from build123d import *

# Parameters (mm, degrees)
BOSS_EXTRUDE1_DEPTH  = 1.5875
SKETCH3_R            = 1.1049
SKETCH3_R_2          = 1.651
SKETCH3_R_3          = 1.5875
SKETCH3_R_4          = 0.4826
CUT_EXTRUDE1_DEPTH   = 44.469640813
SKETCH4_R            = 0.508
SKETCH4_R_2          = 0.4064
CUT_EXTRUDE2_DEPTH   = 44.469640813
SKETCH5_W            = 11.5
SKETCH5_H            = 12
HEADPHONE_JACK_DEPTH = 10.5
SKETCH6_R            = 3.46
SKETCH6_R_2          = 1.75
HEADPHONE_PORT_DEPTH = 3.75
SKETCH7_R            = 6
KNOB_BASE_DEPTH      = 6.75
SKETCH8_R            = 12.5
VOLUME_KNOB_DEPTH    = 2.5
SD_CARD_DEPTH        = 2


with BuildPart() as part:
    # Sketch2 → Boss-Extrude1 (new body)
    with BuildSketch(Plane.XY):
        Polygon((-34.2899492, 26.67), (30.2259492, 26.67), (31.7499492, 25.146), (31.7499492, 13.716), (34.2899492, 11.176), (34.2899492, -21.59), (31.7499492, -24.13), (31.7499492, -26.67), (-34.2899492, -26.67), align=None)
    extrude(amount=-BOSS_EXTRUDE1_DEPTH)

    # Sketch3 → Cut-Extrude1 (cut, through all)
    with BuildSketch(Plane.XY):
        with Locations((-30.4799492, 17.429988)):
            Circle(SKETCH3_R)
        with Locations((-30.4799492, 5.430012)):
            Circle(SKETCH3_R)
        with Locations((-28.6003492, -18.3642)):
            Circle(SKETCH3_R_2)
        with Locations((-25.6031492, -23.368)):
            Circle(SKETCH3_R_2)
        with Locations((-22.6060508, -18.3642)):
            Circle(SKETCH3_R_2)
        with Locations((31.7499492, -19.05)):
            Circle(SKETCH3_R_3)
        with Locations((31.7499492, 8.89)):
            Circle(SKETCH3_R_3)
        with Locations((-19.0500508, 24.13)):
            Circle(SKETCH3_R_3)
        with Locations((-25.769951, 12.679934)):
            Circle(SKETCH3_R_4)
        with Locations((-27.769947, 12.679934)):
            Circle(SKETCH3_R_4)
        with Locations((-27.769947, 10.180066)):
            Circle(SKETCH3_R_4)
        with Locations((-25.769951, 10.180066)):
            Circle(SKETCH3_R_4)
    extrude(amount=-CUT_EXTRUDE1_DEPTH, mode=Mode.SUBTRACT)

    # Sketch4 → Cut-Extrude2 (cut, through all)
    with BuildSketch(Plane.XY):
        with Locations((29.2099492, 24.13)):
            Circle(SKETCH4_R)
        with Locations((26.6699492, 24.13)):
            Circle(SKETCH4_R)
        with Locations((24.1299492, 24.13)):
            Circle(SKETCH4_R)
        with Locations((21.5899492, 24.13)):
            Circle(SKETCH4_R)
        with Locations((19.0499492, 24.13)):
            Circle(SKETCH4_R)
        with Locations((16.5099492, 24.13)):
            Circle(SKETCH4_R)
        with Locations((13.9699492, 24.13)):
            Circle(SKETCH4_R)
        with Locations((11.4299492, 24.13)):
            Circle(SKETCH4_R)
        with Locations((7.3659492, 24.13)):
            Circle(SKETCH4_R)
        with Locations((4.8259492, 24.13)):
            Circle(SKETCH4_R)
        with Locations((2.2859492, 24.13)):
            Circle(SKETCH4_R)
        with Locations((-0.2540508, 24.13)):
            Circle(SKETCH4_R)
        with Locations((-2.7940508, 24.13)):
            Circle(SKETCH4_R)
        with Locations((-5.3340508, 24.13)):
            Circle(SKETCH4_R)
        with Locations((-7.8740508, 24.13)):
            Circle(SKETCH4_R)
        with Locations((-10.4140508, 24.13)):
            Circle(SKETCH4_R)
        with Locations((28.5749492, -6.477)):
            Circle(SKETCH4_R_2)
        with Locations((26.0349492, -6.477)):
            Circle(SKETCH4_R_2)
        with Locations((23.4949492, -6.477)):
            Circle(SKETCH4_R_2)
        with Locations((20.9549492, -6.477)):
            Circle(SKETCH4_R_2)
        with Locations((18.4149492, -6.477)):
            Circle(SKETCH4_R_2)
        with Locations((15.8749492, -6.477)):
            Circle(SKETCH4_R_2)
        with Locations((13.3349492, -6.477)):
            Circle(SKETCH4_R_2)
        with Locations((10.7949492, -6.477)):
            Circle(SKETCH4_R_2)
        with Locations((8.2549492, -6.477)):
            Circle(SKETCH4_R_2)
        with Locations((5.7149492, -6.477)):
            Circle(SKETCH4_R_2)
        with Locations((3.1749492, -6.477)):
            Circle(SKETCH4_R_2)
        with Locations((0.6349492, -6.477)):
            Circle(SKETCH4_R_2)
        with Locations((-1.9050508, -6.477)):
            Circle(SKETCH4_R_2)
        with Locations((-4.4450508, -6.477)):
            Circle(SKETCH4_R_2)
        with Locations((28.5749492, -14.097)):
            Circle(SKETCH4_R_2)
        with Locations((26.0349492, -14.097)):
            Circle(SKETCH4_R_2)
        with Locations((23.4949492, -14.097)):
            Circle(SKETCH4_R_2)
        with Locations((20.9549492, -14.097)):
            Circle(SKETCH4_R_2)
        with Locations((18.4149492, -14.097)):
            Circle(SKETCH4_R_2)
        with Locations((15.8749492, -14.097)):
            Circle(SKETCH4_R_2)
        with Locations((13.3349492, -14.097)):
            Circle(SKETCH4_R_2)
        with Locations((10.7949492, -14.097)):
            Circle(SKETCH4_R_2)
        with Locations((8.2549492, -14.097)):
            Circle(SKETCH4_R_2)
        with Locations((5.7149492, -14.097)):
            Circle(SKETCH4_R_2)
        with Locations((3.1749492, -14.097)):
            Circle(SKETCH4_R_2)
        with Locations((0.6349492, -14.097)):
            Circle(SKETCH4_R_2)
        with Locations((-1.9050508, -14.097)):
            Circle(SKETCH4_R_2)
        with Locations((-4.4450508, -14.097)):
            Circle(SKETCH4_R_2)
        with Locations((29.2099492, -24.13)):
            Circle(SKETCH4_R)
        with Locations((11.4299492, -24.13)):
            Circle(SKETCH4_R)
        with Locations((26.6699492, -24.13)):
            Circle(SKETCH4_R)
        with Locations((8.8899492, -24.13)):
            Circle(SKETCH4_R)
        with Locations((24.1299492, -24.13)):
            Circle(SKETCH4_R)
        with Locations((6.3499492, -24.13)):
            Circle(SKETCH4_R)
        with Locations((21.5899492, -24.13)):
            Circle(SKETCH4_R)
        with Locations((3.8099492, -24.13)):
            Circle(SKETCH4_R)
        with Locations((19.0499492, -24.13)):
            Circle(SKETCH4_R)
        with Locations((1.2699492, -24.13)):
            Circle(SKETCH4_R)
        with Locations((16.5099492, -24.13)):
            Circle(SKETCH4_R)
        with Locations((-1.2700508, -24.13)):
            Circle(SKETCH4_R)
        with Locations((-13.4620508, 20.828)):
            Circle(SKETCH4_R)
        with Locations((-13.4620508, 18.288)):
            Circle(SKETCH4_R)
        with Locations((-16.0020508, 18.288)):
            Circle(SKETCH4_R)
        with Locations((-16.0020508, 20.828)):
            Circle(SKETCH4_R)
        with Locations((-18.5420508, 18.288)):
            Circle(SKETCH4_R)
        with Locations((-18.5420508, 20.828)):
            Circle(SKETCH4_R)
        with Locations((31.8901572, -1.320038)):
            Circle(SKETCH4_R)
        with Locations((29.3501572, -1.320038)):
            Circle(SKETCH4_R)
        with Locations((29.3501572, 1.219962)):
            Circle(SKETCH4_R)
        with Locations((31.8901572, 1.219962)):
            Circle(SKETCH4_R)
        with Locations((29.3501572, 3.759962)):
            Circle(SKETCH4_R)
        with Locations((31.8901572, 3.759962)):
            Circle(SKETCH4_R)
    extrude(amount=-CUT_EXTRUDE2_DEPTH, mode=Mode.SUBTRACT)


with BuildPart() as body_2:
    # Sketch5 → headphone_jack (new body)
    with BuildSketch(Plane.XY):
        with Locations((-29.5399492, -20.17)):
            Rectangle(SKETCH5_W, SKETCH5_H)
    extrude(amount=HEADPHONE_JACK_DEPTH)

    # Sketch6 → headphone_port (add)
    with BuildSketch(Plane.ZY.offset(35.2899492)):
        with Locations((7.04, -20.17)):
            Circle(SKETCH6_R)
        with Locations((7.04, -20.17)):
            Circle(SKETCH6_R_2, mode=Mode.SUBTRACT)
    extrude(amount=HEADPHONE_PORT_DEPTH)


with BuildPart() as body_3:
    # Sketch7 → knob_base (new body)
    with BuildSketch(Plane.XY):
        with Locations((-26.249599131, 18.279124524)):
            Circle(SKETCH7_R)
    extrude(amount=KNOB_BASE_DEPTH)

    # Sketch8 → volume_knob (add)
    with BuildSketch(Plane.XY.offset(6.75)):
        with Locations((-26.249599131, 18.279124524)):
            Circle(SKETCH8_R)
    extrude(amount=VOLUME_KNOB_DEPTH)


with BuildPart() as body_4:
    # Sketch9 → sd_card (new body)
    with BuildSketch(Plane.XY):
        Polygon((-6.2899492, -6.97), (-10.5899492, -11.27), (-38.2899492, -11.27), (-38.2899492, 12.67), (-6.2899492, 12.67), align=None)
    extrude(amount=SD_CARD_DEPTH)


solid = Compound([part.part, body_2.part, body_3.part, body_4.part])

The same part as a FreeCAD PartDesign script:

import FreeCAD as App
import Part
import Sketcher
from FreeCAD import Vector
Q = App.Units.Quantity

doc = App.newDocument("Part")
body = doc.addObject("PartDesign::Body", "Body")

sketch1 = doc.addObject("Sketcher::SketchObject", "Sketch")
body.addObject(sketch1)
sketch1.AttachmentSupport = (doc.XY_Plane, [""])
sketch1.MapMode = "FlatFace"
sketch1.addGeometry(Part.LineSegment(Vector(30.2, 26.7, 0), Vector(-34.3, 26.7, 0)), False)
sketch1.addGeometry(Part.LineSegment(Vector(-34.3, 26.7, 0), Vector(-34.3, -26.7, 0)), False)
sketch1.addGeometry(Part.LineSegment(Vector(-34.3, -26.7, 0), Vector(31.7, -26.7, 0)), False)
sketch1.addGeometry(Part.LineSegment(Vector(31.7, -26.7, 0), Vector(31.7, -24.1, 0)), False)
sketch1.addGeometry(Part.LineSegment(Vector(31.7, -24.1, 0), Vector(34.3, -21.6, 0)), False)
sketch1.addGeometry(Part.LineSegment(Vector(34.3, -21.6, 0), Vector(34.3, 11.2, 0)), False)
sketch1.addGeometry(Part.LineSegment(Vector(34.3, 11.2, 0), Vector(31.7, 13.7, 0)), False)
sketch1.addGeometry(Part.LineSegment(Vector(31.7, 13.7, 0), Vector(31.7, 25.1, 0)), False)
sketch1.addGeometry(Part.LineSegment(Vector(31.7, 25.1, 0), Vector(30.2, 26.7, 0)), False)
sketch1.addConstraint(Sketcher.Constraint("Coincident", 0, 2, 1, 1))
sketch1.addConstraint(Sketcher.Constraint("Coincident", 1, 2, 2, 1))
sketch1.addConstraint(Sketcher.Constraint("Coincident", 2, 2, 3, 1))
sketch1.addConstraint(Sketcher.Constraint("Coincident", 3, 2, 4, 1))
sketch1.addConstraint(Sketcher.Constraint("Coincident", 4, 2, 5, 1))
sketch1.addConstraint(Sketcher.Constraint("Coincident", 5, 2, 6, 1))
sketch1.addConstraint(Sketcher.Constraint("Coincident", 6, 2, 7, 1))
sketch1.addConstraint(Sketcher.Constraint("Coincident", 7, 2, 8, 1))
sketch1.addConstraint(Sketcher.Constraint("Coincident", 8, 2, 0, 1))
sketch1.addConstraint(Sketcher.Constraint("Horizontal", 0))
sketch1.addConstraint(Sketcher.Constraint("Vertical", 1))
sketch1.addConstraint(Sketcher.Constraint("Horizontal", 2))
sketch1.addConstraint(Sketcher.Constraint("Vertical", 3))
sketch1.addConstraint(Sketcher.Constraint("Vertical", 5))
sketch1.addConstraint(Sketcher.Constraint("Vertical", 7))
sketch1.addConstraint(Sketcher.Constraint("Perpendicular", 4, 6))
sketch1.addConstraint(Sketcher.Constraint("Parallel", 6, 8))
sketch1.addConstraint(Sketcher.Constraint("Vertical", 3, 2, 6, 2))
sketch1.addConstraint(Sketcher.Constraint("Equal", 4, 6))
sketch1.addConstraint(Sketcher.Constraint("DistanceY", 1, 2, 1, 1, Q("2.1 in")))
sketch1.addConstraint(Sketcher.Constraint("DistanceY", 3, 1, 3, 2, Q("0.1 in")))
sketch1.addConstraint(Sketcher.Constraint("DistanceY", 5, 1, 5, 2, Q("1.29 in")))
sketch1.addConstraint(Sketcher.Constraint("DistanceY", 7, 1, 7, 2, Q("0.45 in")))
sketch1.addConstraint(Sketcher.Constraint("DistanceX", 3, 2, 4, 2, Q("0.1 in")))
sketch1.addConstraint(Sketcher.Constraint("DistanceY", -1, 1, 0, 2, Q("1.05 in")))
sketch1.addConstraint(Sketcher.Constraint("DistanceX", 0, 2, 0, 1, Q("64.515898 mm")))
sketch1.addConstraint(Sketcher.Constraint("DistanceX", 0, 2, -1, 1, Q("34.289949 mm")))
pad1 = doc.addObject("PartDesign::Pad", "Pad")
body.addObject(pad1)
pad1.Profile = sketch1
pad1.Length = Q("0.0625 in")
pad1.Reversed = True

sketch2 = doc.addObject("Sketcher::SketchObject", "Sketch001")
body.addObject(sketch2)
sketch2.AttachmentSupport = (doc.XY_Plane, [""])
sketch2.MapMode = "FlatFace"
sketch2.addGeometry(Part.Circle(Vector(-30.48, 17.43, 0), Vector(0, 0, 1), 1.1), False)
sketch2.addGeometry(Part.Circle(Vector(-30.48, 5.43, 0), Vector(0, 0, 1), 1.1), False)
sketch2.addGeometry(Part.Circle(Vector(-28.6, -18.36, 0), Vector(0, 0, 1), 1.65), False)
sketch2.addGeometry(Part.Circle(Vector(-25.6, -23.37, 0), Vector(0, 0, 1), 1.65), False)
sketch2.addGeometry(Part.Circle(Vector(-22.61, -18.36, 0), Vector(0, 0, 1), 1.65), False)
sketch2.addGeometry(Part.Circle(Vector(31.75, -19.05, 0), Vector(0, 0, 1), 1.59), False)
sketch2.addGeometry(Part.Circle(Vector(31.75, 8.89, 0), Vector(0, 0, 1), 1.59), False)
sketch2.addGeometry(Part.Circle(Vector(-19.05, 24.13, 0), Vector(0, 0, 1), 1.59), False)
sketch2.addGeometry(Part.Circle(Vector(-25.77, 12.68, 0), Vector(0, 0, 1), 0.48), False)
sketch2.addGeometry(Part.Circle(Vector(-27.77, 12.68, 0), Vector(0, 0, 1), 0.48), False)
sketch2.addGeometry(Part.Circle(Vector(-27.77, 10.18, 0), Vector(0, 0, 1), 0.48), False)
sketch2.addGeometry(Part.Circle(Vector(-25.77, 10.18, 0), Vector(0, 0, 1), 0.48), False)
sketch2.addConstraint(Sketcher.Constraint("Equal", 0, 1))
sketch2.addConstraint(Sketcher.Constraint("Equal", 2, 3))
sketch2.addConstraint(Sketcher.Constraint("Equal", 3, 4))
sketch2.addConstraint(Sketcher.Constraint("Equal", 5, 6))
sketch2.addConstraint(Sketcher.Constraint("Equal", 6, 7))
sketch2.addConstraint(Sketcher.Constraint("Equal", 8, 9))
sketch2.addConstraint(Sketcher.Constraint("Equal", 9, 10))
sketch2.addConstraint(Sketcher.Constraint("Equal", 10, 11))
sketch2.addConstraint(Sketcher.Constraint("Horizontal", 2, 3, 4, 3))
sketch2.addConstraint(Sketcher.Constraint("Horizontal", 8, 3, 9, 3))
sketch2.addConstraint(Sketcher.Constraint("Horizontal", 10, 3, 11, 3))
sketch2.addConstraint(Sketcher.Constraint("Vertical", 0, 3, 1, 3))
sketch2.addConstraint(Sketcher.Constraint("Vertical", 5, 3, 6, 3))
sketch2.addConstraint(Sketcher.Constraint("Vertical", 9, 3, 10, 3))
sketch2.addConstraint(Sketcher.Constraint("Vertical", 8, 3, 11, 3))
sketch2.addConstraint(Sketcher.Constraint("Diameter", 2, Q("0.13 in")))
sketch2.addConstraint(Sketcher.Constraint("Diameter", 0, Q("0.087 in")))
sketch2.addConstraint(Sketcher.Constraint("Diameter", 5, Q("0.125 in")))
sketch2.addConstraint(Sketcher.Constraint("Diameter", 8, Q("0.038 in")))
sketch2.addConstraint(Sketcher.Constraint("DistanceY", 5, 3, 6, 3, Q("1.1 in")))
sketch2.addConstraint(Sketcher.Constraint("DistanceY", 3, 3, -1, 1, Q("0.92 in")))
sketch2.addConstraint(Sketcher.Constraint("DistanceY", 5, 3, -1, 1, Q("0.75 in")))
sketch2.addConstraint(Sketcher.Constraint("DistanceY", -1, 1, 7, 3, Q("0.95 in")))
sketch2.addConstraint(Sketcher.Constraint("DistanceX", 4, 3, 5, 3, Q("2.14 in")))
sketch2.addConstraint(Sketcher.Constraint("DistanceX", 4, 3, 7, 3, Q("0.14 in")))
sketch2.addConstraint(Sketcher.Constraint("DistanceY", 2, 3, -1, 1, Q("0.723 in")))
sketch2.addConstraint(Sketcher.Constraint("DistanceX", 1, 3, 2, 3, Q("0.074 in")))
sketch2.addConstraint(Sketcher.Constraint("DistanceX", 2, 3, 3, 3, Q("0.118 in")))
sketch2.addConstraint(Sketcher.Constraint("DistanceX", 3, 3, 4, 3, Q("2.997098 mm")))
sketch2.addConstraint(Sketcher.Constraint("DistanceX", 0, 3, 8, 3, Q("4.709998 mm")))
sketch2.addConstraint(Sketcher.Constraint("DistanceX", 0, 3, -1, 1, Q("30.479949 mm")))
sketch2.addConstraint(Sketcher.Constraint("DistanceY", -1, 1, 0, 3, Q("17.429988 mm")))
sketch2.addConstraint(Sketcher.Constraint("DistanceY", -1, 1, 1, 3, Q("5.430012 mm")))
sketch2.addConstraint(Sketcher.Constraint("DistanceY", 1, 3, 8, 3, Q("7.249922 mm")))
sketch2.addConstraint(Sketcher.Constraint("DistanceX", 9, 3, -1, 1, Q("27.769947 mm")))
sketch2.addConstraint(Sketcher.Constraint("DistanceY", -1, 1, 10, 3, Q("10.180066 mm")))
pocket1 = doc.addObject("PartDesign::Pocket", "Pocket")
body.addObject(pocket1)
pocket1.Profile = sketch2
pocket1.Type = "ThroughAll"

sketch3 = doc.addObject("Sketcher::SketchObject", "Sketch002")
body.addObject(sketch3)
sketch3.AttachmentSupport = (doc.XY_Plane, [""])
sketch3.MapMode = "FlatFace"
sketch3.addGeometry(Part.Circle(Vector(29.21, 24.13, 0), Vector(0, 0, 1), 0.51), False)
sketch3.addGeometry(Part.Circle(Vector(26.67, 24.13, 0), Vector(0, 0, 1), 0.51), False)
sketch3.addGeometry(Part.Circle(Vector(24.13, 24.13, 0), Vector(0, 0, 1), 0.51), False)
sketch3.addGeometry(Part.Circle(Vector(21.59, 24.13, 0), Vector(0, 0, 1), 0.51), False)
sketch3.addGeometry(Part.Circle(Vector(19.05, 24.13, 0), Vector(0, 0, 1), 0.51), False)
sketch3.addGeometry(Part.Circle(Vector(16.51, 24.13, 0), Vector(0, 0, 1), 0.51), False)
sketch3.addGeometry(Part.Circle(Vector(13.97, 24.13, 0), Vector(0, 0, 1), 0.51), False)
sketch3.addGeometry(Part.Circle(Vector(11.43, 24.13, 0), Vector(0, 0, 1), 0.51), False)
sketch3.addGeometry(Part.Circle(Vector(7.37, 24.13, 0), Vector(0, 0, 1), 0.51), False)
sketch3.addGeometry(Part.Circle(Vector(4.83, 24.13, 0), Vector(0, 0, 1), 0.51), False)
sketch3.addGeometry(Part.Circle(Vector(2.29, 24.13, 0), Vector(0, 0, 1), 0.51), False)
sketch3.addGeometry(Part.Circle(Vector(-0.25, 24.13, 0), Vector(0, 0, 1), 0.51), False)
sketch3.addGeometry(Part.Circle(Vector(-2.79, 24.13, 0), Vector(0, 0, 1), 0.51), False)
sketch3.addGeometry(Part.Circle(Vector(-5.33, 24.13, 0), Vector(0, 0, 1), 0.51), False)
sketch3.addGeometry(Part.Circle(Vector(-7.87, 24.13, 0), Vector(0, 0, 1), 0.51), False)
sketch3.addGeometry(Part.Circle(Vector(-10.41, 24.13, 0), Vector(0, 0, 1), 0.51), False)
sketch3.addGeometry(Part.Circle(Vector(28.57, -6.48, 0), Vector(0, 0, 1), 0.41), False)
sketch3.addGeometry(Part.Circle(Vector(26.03, -6.48, 0), Vector(0, 0, 1), 0.41), False)
sketch3.addGeometry(Part.Circle(Vector(23.49, -6.48, 0), Vector(0, 0, 1), 0.41), False)
sketch3.addGeometry(Part.Circle(Vector(20.95, -6.48, 0), Vector(0, 0, 1), 0.41), False)
sketch3.addGeometry(Part.Circle(Vector(18.41, -6.48, 0), Vector(0, 0, 1), 0.41), False)
sketch3.addGeometry(Part.Circle(Vector(15.87, -6.48, 0), Vector(0, 0, 1), 0.41), False)
sketch3.addGeometry(Part.Circle(Vector(13.33, -6.48, 0), Vector(0, 0, 1), 0.41), False)
sketch3.addGeometry(Part.Circle(Vector(10.79, -6.48, 0), Vector(0, 0, 1), 0.41), False)
sketch3.addGeometry(Part.Circle(Vector(8.25, -6.48, 0), Vector(0, 0, 1), 0.41), False)
sketch3.addGeometry(Part.Circle(Vector(5.71, -6.48, 0), Vector(0, 0, 1), 0.41), False)
sketch3.addGeometry(Part.Circle(Vector(3.17, -6.48, 0), Vector(0, 0, 1), 0.41), False)
sketch3.addGeometry(Part.Circle(Vector(0.63, -6.48, 0), Vector(0, 0, 1), 0.41), False)
sketch3.addGeometry(Part.Circle(Vector(-1.91, -6.48, 0), Vector(0, 0, 1), 0.41), False)
sketch3.addGeometry(Part.Circle(Vector(-4.45, -6.48, 0), Vector(0, 0, 1), 0.41), False)
sketch3.addGeometry(Part.Circle(Vector(28.57, -14.1, 0), Vector(0, 0, 1), 0.41), False)
sketch3.addGeometry(Part.Circle(Vector(26.03, -14.1, 0), Vector(0, 0, 1), 0.41), False)
sketch3.addGeometry(Part.Circle(Vector(23.49, -14.1, 0), Vector(0, 0, 1), 0.41), False)
sketch3.addGeometry(Part.Circle(Vector(20.95, -14.1, 0), Vector(0, 0, 1), 0.41), False)
sketch3.addGeometry(Part.Circle(Vector(18.41, -14.1, 0), Vector(0, 0, 1), 0.41), False)
sketch3.addGeometry(Part.Circle(Vector(15.87, -14.1, 0), Vector(0, 0, 1), 0.41), False)
sketch3.addGeometry(Part.Circle(Vector(13.33, -14.1, 0), Vector(0, 0, 1), 0.41), False)
sketch3.addGeometry(Part.Circle(Vector(10.79, -14.1, 0), Vector(0, 0, 1), 0.41), False)
sketch3.addGeometry(Part.Circle(Vector(8.25, -14.1, 0), Vector(0, 0, 1), 0.41), False)
sketch3.addGeometry(Part.Circle(Vector(5.71, -14.1, 0), Vector(0, 0, 1), 0.41), False)
sketch3.addGeometry(Part.Circle(Vector(3.17, -14.1, 0), Vector(0, 0, 1), 0.41), False)
sketch3.addGeometry(Part.Circle(Vector(0.63, -14.1, 0), Vector(0, 0, 1), 0.41), False)
sketch3.addGeometry(Part.Circle(Vector(-1.91, -14.1, 0), Vector(0, 0, 1), 0.41), False)
sketch3.addGeometry(Part.Circle(Vector(-4.45, -14.1, 0), Vector(0, 0, 1), 0.41), False)
sketch3.addGeometry(Part.Circle(Vector(29.21, -24.13, 0), Vector(0, 0, 1), 0.51), False)
sketch3.addGeometry(Part.Circle(Vector(11.43, -24.13, 0), Vector(0, 0, 1), 0.51), False)
sketch3.addGeometry(Part.Circle(Vector(26.67, -24.13, 0), Vector(0, 0, 1), 0.51), False)
sketch3.addGeometry(Part.Circle(Vector(8.89, -24.13, 0), Vector(0, 0, 1), 0.51), False)
sketch3.addGeometry(Part.Circle(Vector(24.13, -24.13, 0), Vector(0, 0, 1), 0.51), False)
sketch3.addGeometry(Part.Circle(Vector(6.35, -24.13, 0), Vector(0, 0, 1), 0.51), False)
sketch3.addGeometry(Part.Circle(Vector(21.59, -24.13, 0), Vector(0, 0, 1), 0.51), False)
sketch3.addGeometry(Part.Circle(Vector(3.81, -24.13, 0), Vector(0, 0, 1), 0.51), False)
sketch3.addGeometry(Part.Circle(Vector(19.05, -24.13, 0), Vector(0, 0, 1), 0.51), False)
sketch3.addGeometry(Part.Circle(Vector(1.27, -24.13, 0), Vector(0, 0, 1), 0.51), False)
sketch3.addGeometry(Part.Circle(Vector(16.51, -24.13, 0), Vector(0, 0, 1), 0.51), False)
sketch3.addGeometry(Part.Circle(Vector(-1.27, -24.13, 0), Vector(0, 0, 1), 0.51), False)
sketch3.addGeometry(Part.Circle(Vector(-13.46, 20.83, 0), Vector(0, 0, 1), 0.51), False)
sketch3.addGeometry(Part.Circle(Vector(-13.46, 18.29, 0), Vector(0, 0, 1), 0.51), False)
sketch3.addGeometry(Part.Circle(Vector(-16, 18.29, 0), Vector(0, 0, 1), 0.51), False)
sketch3.addGeometry(Part.Circle(Vector(-16, 20.83, 0), Vector(0, 0, 1), 0.51), False)
sketch3.addGeometry(Part.Circle(Vector(-18.54, 18.29, 0), Vector(0, 0, 1), 0.51), False)
sketch3.addGeometry(Part.Circle(Vector(-18.54, 20.83, 0), Vector(0, 0, 1), 0.51), False)
sketch3.addGeometry(Part.Circle(Vector(31.89, -1.32, 0), Vector(0, 0, 1), 0.51), False)
sketch3.addGeometry(Part.Circle(Vector(29.35, -1.32, 0), Vector(0, 0, 1), 0.51), False)
sketch3.addGeometry(Part.Circle(Vector(29.35, 1.22, 0), Vector(0, 0, 1), 0.51), False)
sketch3.addGeometry(Part.Circle(Vector(31.89, 1.22, 0), Vector(0, 0, 1), 0.51), False)
sketch3.addGeometry(Part.Circle(Vector(29.35, 3.76, 0), Vector(0, 0, 1), 0.51), False)
sketch3.addGeometry(Part.Circle(Vector(31.89, 3.76, 0), Vector(0, 0, 1), 0.51), False)
sketch3.addConstraint(Sketcher.Constraint("Equal", 0, 1))
sketch3.addConstraint(Sketcher.Constraint("Equal", 1, 2))
sketch3.addConstraint(Sketcher.Constraint("Equal", 2, 3))
sketch3.addConstraint(Sketcher.Constraint("Equal", 3, 4))
sketch3.addConstraint(Sketcher.Constraint("Equal", 4, 5))
sketch3.addConstraint(Sketcher.Constraint("Equal", 5, 6))
sketch3.addConstraint(Sketcher.Constraint("Equal", 6, 7))
sketch3.addConstraint(Sketcher.Constraint("Equal", 7, 8))
sketch3.addConstraint(Sketcher.Constraint("Equal", 8, 9))
sketch3.addConstraint(Sketcher.Constraint("Equal", 9, 10))
sketch3.addConstraint(Sketcher.Constraint("Equal", 10, 11))
sketch3.addConstraint(Sketcher.Constraint("Equal", 11, 12))
sketch3.addConstraint(Sketcher.Constraint("Equal", 12, 13))
sketch3.addConstraint(Sketcher.Constraint("Equal", 13, 14))
sketch3.addConstraint(Sketcher.Constraint("Equal", 14, 15))
sketch3.addConstraint(Sketcher.Constraint("Equal", 16, 17))
sketch3.addConstraint(Sketcher.Constraint("Equal", 17, 18))
sketch3.addConstraint(Sketcher.Constraint("Equal", 18, 19))
sketch3.addConstraint(Sketcher.Constraint("Equal", 19, 20))
sketch3.addConstraint(Sketcher.Constraint("Equal", 20, 21))
sketch3.addConstraint(Sketcher.Constraint("Equal", 21, 22))
sketch3.addConstraint(Sketcher.Constraint("Equal", 22, 23))
sketch3.addConstraint(Sketcher.Constraint("Equal", 23, 24))
sketch3.addConstraint(Sketcher.Constraint("Equal", 24, 25))
sketch3.addConstraint(Sketcher.Constraint("Equal", 25, 26))
sketch3.addConstraint(Sketcher.Constraint("Equal", 26, 27))
sketch3.addConstraint(Sketcher.Constraint("Equal", 27, 28))
sketch3.addConstraint(Sketcher.Constraint("Equal", 28, 29))
sketch3.addConstraint(Sketcher.Constraint("Equal", 29, 30))
sketch3.addConstraint(Sketcher.Constraint("Equal", 30, 31))
sketch3.addConstraint(Sketcher.Constraint("Equal", 31, 32))
sketch3.addConstraint(Sketcher.Constraint("Equal", 32, 33))
sketch3.addConstraint(Sketcher.Constraint("Equal", 33, 34))
sketch3.addConstraint(Sketcher.Constraint("Equal", 34, 35))
sketch3.addConstraint(Sketcher.Constraint("Equal", 35, 36))
sketch3.addConstraint(Sketcher.Constraint("Equal", 36, 37))
sketch3.addConstraint(Sketcher.Constraint("Equal", 37, 38))
sketch3.addConstraint(Sketcher.Constraint("Equal", 38, 39))
sketch3.addConstraint(Sketcher.Constraint("Equal", 39, 40))
sketch3.addConstraint(Sketcher.Constraint("Equal", 40, 41))
sketch3.addConstraint(Sketcher.Constraint("Equal", 41, 42))
sketch3.addConstraint(Sketcher.Constraint("Equal", 42, 43))
sketch3.addConstraint(Sketcher.Constraint("Equal", 15, 44))
sketch3.addConstraint(Sketcher.Constraint("Equal", 44, 45))
sketch3.addConstraint(Sketcher.Constraint("Equal", 45, 46))
sketch3.addConstraint(Sketcher.Constraint("Equal", 46, 47))
sketch3.addConstraint(Sketcher.Constraint("Equal", 47, 48))
sketch3.addConstraint(Sketcher.Constraint("Equal", 48, 49))
sketch3.addConstraint(Sketcher.Constraint("Equal", 49, 50))
sketch3.addConstraint(Sketcher.Constraint("Equal", 50, 51))
sketch3.addConstraint(Sketcher.Constraint("Equal", 51, 52))
sketch3.addConstraint(Sketcher.Constraint("Equal", 52, 53))
sketch3.addConstraint(Sketcher.Constraint("Equal", 53, 54))
sketch3.addConstraint(Sketcher.Constraint("Equal", 54, 55))
sketch3.addConstraint(Sketcher.Constraint("Equal", 55, 56))
sketch3.addConstraint(Sketcher.Constraint("Equal", 56, 57))
sketch3.addConstraint(Sketcher.Constraint("Equal", 57, 58))
sketch3.addConstraint(Sketcher.Constraint("Equal", 58, 59))
sketch3.addConstraint(Sketcher.Constraint("Equal", 59, 60))
sketch3.addConstraint(Sketcher.Constraint("Equal", 60, 61))
sketch3.addConstraint(Sketcher.Constraint("Equal", 61, 62))
sketch3.addConstraint(Sketcher.Constraint("Equal", 62, 63))
sketch3.addConstraint(Sketcher.Constraint("Equal", 63, 64))
sketch3.addConstraint(Sketcher.Constraint("Equal", 64, 65))
sketch3.addConstraint(Sketcher.Constraint("Equal", 65, 66))
sketch3.addConstraint(Sketcher.Constraint("Equal", 66, 67))
sketch3.addConstraint(Sketcher.Constraint("Symmetric", 0, 3, 44, 3, -1))
sketch3.addConstraint(Sketcher.Constraint("Symmetric", 7, 3, 45, 3, -1))
sketch3.addConstraint(Sketcher.Constraint("Symmetric", 1, 3, 46, 3, -1))
sketch3.addConstraint(Sketcher.Constraint("Symmetric", 2, 3, 48, 3, -1))
sketch3.addConstraint(Sketcher.Constraint("Symmetric", 3, 3, 50, 3, -1))
sketch3.addConstraint(Sketcher.Constraint("Symmetric", 4, 3, 52, 3, -1))
sketch3.addConstraint(Sketcher.Constraint("Symmetric", 5, 3, 54, 3, -1))
sketch3.addConstraint(Sketcher.Constraint("Horizontal", 0, 3, 1, 3))
sketch3.addConstraint(Sketcher.Constraint("Horizontal", 1, 3, 2, 3))
sketch3.addConstraint(Sketcher.Constraint("Horizontal", 2, 3, 3, 3))
sketch3.addConstraint(Sketcher.Constraint("Horizontal", 3, 3, 4, 3))
sketch3.addConstraint(Sketcher.Constraint("Horizontal", 4, 3, 5, 3))
sketch3.addConstraint(Sketcher.Constraint("Horizontal", 5, 3, 6, 3))
sketch3.addConstraint(Sketcher.Constraint("Horizontal", 6, 3, 7, 3))
sketch3.addConstraint(Sketcher.Constraint("Horizontal", 7, 3, 8, 3))
sketch3.addConstraint(Sketcher.Constraint("Horizontal", 8, 3, 9, 3))
sketch3.addConstraint(Sketcher.Constraint("Horizontal", 9, 3, 10, 3))
sketch3.addConstraint(Sketcher.Constraint("Horizontal", 10, 3, 11, 3))
sketch3.addConstraint(Sketcher.Constraint("Horizontal", 11, 3, 12, 3))
sketch3.addConstraint(Sketcher.Constraint("Horizontal", 12, 3, 13, 3))
sketch3.addConstraint(Sketcher.Constraint("Horizontal", 13, 3, 14, 3))
sketch3.addConstraint(Sketcher.Constraint("Horizontal", 14, 3, 15, 3))
sketch3.addConstraint(Sketcher.Constraint("Horizontal", 16, 3, 17, 3))
sketch3.addConstraint(Sketcher.Constraint("Horizontal", 17, 3, 18, 3))
sketch3.addConstraint(Sketcher.Constraint("Horizontal", 18, 3, 19, 3))
sketch3.addConstraint(Sketcher.Constraint("Horizontal", 19, 3, 20, 3))
sketch3.addConstraint(Sketcher.Constraint("Horizontal", 20, 3, 21, 3))
sketch3.addConstraint(Sketcher.Constraint("Horizontal", 21, 3, 22, 3))
sketch3.addConstraint(Sketcher.Constraint("Horizontal", 22, 3, 23, 3))
sketch3.addConstraint(Sketcher.Constraint("Horizontal", 23, 3, 24, 3))
sketch3.addConstraint(Sketcher.Constraint("Horizontal", 24, 3, 25, 3))
sketch3.addConstraint(Sketcher.Constraint("Horizontal", 25, 3, 26, 3))
sketch3.addConstraint(Sketcher.Constraint("Horizontal", 26, 3, 27, 3))
sketch3.addConstraint(Sketcher.Constraint("Horizontal", 27, 3, 28, 3))
sketch3.addConstraint(Sketcher.Constraint("Horizontal", 28, 3, 29, 3))
sketch3.addConstraint(Sketcher.Constraint("Horizontal", 30, 3, 31, 3))
sketch3.addConstraint(Sketcher.Constraint("Horizontal", 31, 3, 32, 3))
sketch3.addConstraint(Sketcher.Constraint("Horizontal", 32, 3, 33, 3))
sketch3.addConstraint(Sketcher.Constraint("Horizontal", 33, 3, 34, 3))
sketch3.addConstraint(Sketcher.Constraint("Horizontal", 34, 3, 35, 3))
sketch3.addConstraint(Sketcher.Constraint("Horizontal", 35, 3, 36, 3))
sketch3.addConstraint(Sketcher.Constraint("Horizontal", 36, 3, 37, 3))
sketch3.addConstraint(Sketcher.Constraint("Horizontal", 37, 3, 38, 3))
sketch3.addConstraint(Sketcher.Constraint("Horizontal", 38, 3, 39, 3))
sketch3.addConstraint(Sketcher.Constraint("Horizontal", 39, 3, 40, 3))
sketch3.addConstraint(Sketcher.Constraint("Horizontal", 40, 3, 41, 3))
sketch3.addConstraint(Sketcher.Constraint("Horizontal", 41, 3, 42, 3))
sketch3.addConstraint(Sketcher.Constraint("Horizontal", 42, 3, 43, 3))
sketch3.addConstraint(Sketcher.Constraint("Horizontal", 46, 3, 47, 3))
sketch3.addConstraint(Sketcher.Constraint("Horizontal", 48, 3, 49, 3))
sketch3.addConstraint(Sketcher.Constraint("Horizontal", 50, 3, 51, 3))
sketch3.addConstraint(Sketcher.Constraint("Horizontal", 52, 3, 53, 3))
sketch3.addConstraint(Sketcher.Constraint("Horizontal", 54, 3, 55, 3))
sketch3.addConstraint(Sketcher.Constraint("Horizontal", 57, 3, 58, 3))
sketch3.addConstraint(Sketcher.Constraint("Horizontal", 56, 3, 59, 3))
sketch3.addConstraint(Sketcher.Constraint("Horizontal", 58, 3, 60, 3))
sketch3.addConstraint(Sketcher.Constraint("Horizontal", 59, 3, 61, 3))
sketch3.addConstraint(Sketcher.Constraint("Horizontal", 62, 3, 63, 3))
sketch3.addConstraint(Sketcher.Constraint("Horizontal", 64, 3, 65, 3))
sketch3.addConstraint(Sketcher.Constraint("Horizontal", 66, 3, 67, 3))
sketch3.addConstraint(Sketcher.Constraint("Vertical", 16, 3, 30, 3))
sketch3.addConstraint(Sketcher.Constraint("Vertical", 17, 3, 31, 3))
sketch3.addConstraint(Sketcher.Constraint("Vertical", 18, 3, 32, 3))
sketch3.addConstraint(Sketcher.Constraint("Vertical", 19, 3, 33, 3))
sketch3.addConstraint(Sketcher.Constraint("Vertical", 20, 3, 34, 3))
sketch3.addConstraint(Sketcher.Constraint("Vertical", 21, 3, 35, 3))
sketch3.addConstraint(Sketcher.Constraint("Vertical", 22, 3, 36, 3))
sketch3.addConstraint(Sketcher.Constraint("Vertical", 23, 3, 37, 3))
sketch3.addConstraint(Sketcher.Constraint("Vertical", 24, 3, 38, 3))
sketch3.addConstraint(Sketcher.Constraint("Vertical", 25, 3, 39, 3))
sketch3.addConstraint(Sketcher.Constraint("Vertical", 26, 3, 40, 3))
sketch3.addConstraint(Sketcher.Constraint("Vertical", 27, 3, 41, 3))
sketch3.addConstraint(Sketcher.Constraint("Vertical", 28, 3, 42, 3))
sketch3.addConstraint(Sketcher.Constraint("Vertical", 29, 3, 43, 3))
sketch3.addConstraint(Sketcher.Constraint("Vertical", 56, 3, 57, 3))
sketch3.addConstraint(Sketcher.Constraint("Vertical", 58, 3, 59, 3))
sketch3.addConstraint(Sketcher.Constraint("Vertical", 60, 3, 61, 3))
sketch3.addConstraint(Sketcher.Constraint("Vertical", 63, 3, 64, 3))
sketch3.addConstraint(Sketcher.Constraint("Vertical", 62, 3, 65, 3))
sketch3.addConstraint(Sketcher.Constraint("Vertical", 64, 3, 66, 3))
sketch3.addConstraint(Sketcher.Constraint("Vertical", 65, 3, 67, 3))
sketch3.addConstraint(Sketcher.Constraint("Diameter", 0, Q("0.04 in")))
sketch3.addConstraint(Sketcher.Constraint("Diameter", 16, Q("0.032 in")))
sketch3.addConstraint(Sketcher.Constraint("DistanceY", -1, 1, 0, 3, Q("0.95 in")))
sketch3.addConstraint(Sketcher.Constraint("DistanceY", -1, 1, 56, 3, Q("0.82 in")))
sketch3.addConstraint(Sketcher.Constraint("DistanceY", -1, 1, 57, 3, Q("0.72 in")))
sketch3.addConstraint(Sketcher.Constraint("DistanceY", 16, 3, -1, 1, Q("0.255 in")))
sketch3.addConstraint(Sketcher.Constraint("DistanceY", 30, 3, -1, 1, Q("0.555 in")))
sketch3.addConstraint(Sketcher.Constraint("DistanceX", -1, 1, 0, 3, Q("29.209949 mm")))
sketch3.addConstraint(Sketcher.Constraint("DistanceX", -1, 1, 1, 3, Q("26.669949 mm")))
sketch3.addConstraint(Sketcher.Constraint("DistanceX", -1, 1, 2, 3, Q("24.129949 mm")))
sketch3.addConstraint(Sketcher.Constraint("DistanceX", -1, 1, 3, 3, Q("21.589949 mm")))
sketch3.addConstraint(Sketcher.Constraint("DistanceX", -1, 1, 4, 3, Q("19.049949 mm")))
sketch3.addConstraint(Sketcher.Constraint("DistanceX", -1, 1, 5, 3, Q("16.509949 mm")))
sketch3.addConstraint(Sketcher.Constraint("DistanceX", -1, 1, 6, 3, Q("13.969949 mm")))
sketch3.addConstraint(Sketcher.Constraint("DistanceX", -1, 1, 7, 3, Q("11.429949 mm")))
sketch3.addConstraint(Sketcher.Constraint("DistanceX", -1, 1, 8, 3, Q("7.365949 mm")))
sketch3.addConstraint(Sketcher.Constraint("DistanceX", -1, 1, 9, 3, Q("4.825949 mm")))
sketch3.addConstraint(Sketcher.Constraint("DistanceX", -1, 1, 10, 3, Q("2.285949 mm")))
sketch3.addConstraint(Sketcher.Constraint("DistanceX", 11, 3, -1, 1, Q("0.254051 mm")))
sketch3.addConstraint(Sketcher.Constraint("DistanceX", 12, 3, -1, 1, Q("2.794051 mm")))
sketch3.addConstraint(Sketcher.Constraint("DistanceX", 13, 3, -1, 1, Q("5.334051 mm")))
sketch3.addConstraint(Sketcher.Constraint("DistanceX", 14, 3, -1, 1, Q("7.874051 mm")))
sketch3.addConstraint(Sketcher.Constraint("DistanceX", 15, 3, -1, 1, Q("10.414051 mm")))
sketch3.addConstraint(Sketcher.Constraint("DistanceX", -1, 1, 16, 3, Q("28.574949 mm")))
sketch3.addConstraint(Sketcher.Constraint("DistanceX", -1, 1, 17, 3, Q("26.034949 mm")))
sketch3.addConstraint(Sketcher.Constraint("DistanceX", -1, 1, 18, 3, Q("23.494949 mm")))
sketch3.addConstraint(Sketcher.Constraint("DistanceX", -1, 1, 19, 3, Q("20.954949 mm")))
sketch3.addConstraint(Sketcher.Constraint("DistanceX", -1, 1, 20, 3, Q("18.414949 mm")))
sketch3.addConstraint(Sketcher.Constraint("DistanceX", -1, 1, 21, 3, Q("15.874949 mm")))
sketch3.addConstraint(Sketcher.Constraint("DistanceX", -1, 1, 22, 3, Q("13.334949 mm")))
sketch3.addConstraint(Sketcher.Constraint("DistanceX", -1, 1, 23, 3, Q("10.794949 mm")))
sketch3.addConstraint(Sketcher.Constraint("DistanceX", -1, 1, 24, 3, Q("8.254949 mm")))
sketch3.addConstraint(Sketcher.Constraint("DistanceX", -1, 1, 25, 3, Q("5.714949 mm")))
sketch3.addConstraint(Sketcher.Constraint("DistanceX", -1, 1, 26, 3, Q("3.174949 mm")))
sketch3.addConstraint(Sketcher.Constraint("DistanceX", -1, 1, 27, 3, Q("0.634949 mm")))
sketch3.addConstraint(Sketcher.Constraint("DistanceX", 28, 3, -1, 1, Q("1.905051 mm")))
sketch3.addConstraint(Sketcher.Constraint("DistanceX", 29, 3, -1, 1, Q("4.445051 mm")))
sketch3.addConstraint(Sketcher.Constraint("DistanceX", -1, 1, 47, 3, Q("8.889949 mm")))
sketch3.addConstraint(Sketcher.Constraint("DistanceX", -1, 1, 49, 3, Q("6.349949 mm")))
sketch3.addConstraint(Sketcher.Constraint("DistanceX", -1, 1, 51, 3, Q("3.809949 mm")))
sketch3.addConstraint(Sketcher.Constraint("DistanceX", -1, 1, 53, 3, Q("1.269949 mm")))
sketch3.addConstraint(Sketcher.Constraint("DistanceX", 55, 3, -1, 1, Q("1.270051 mm")))
sketch3.addConstraint(Sketcher.Constraint("DistanceX", 56, 3, -1, 1, Q("13.462051 mm")))
sketch3.addConstraint(Sketcher.Constraint("DistanceX", 58, 3, -1, 1, Q("16.002051 mm")))
sketch3.addConstraint(Sketcher.Constraint("DistanceX", 60, 3, -1, 1, Q("18.542051 mm")))
sketch3.addConstraint(Sketcher.Constraint("DistanceY", -1, 1, 66, 3, Q("3.759962 mm")))
sketch3.addConstraint(Sketcher.Constraint("DistanceX", -1, 1, 62, 3, Q("31.890157 mm")))
sketch3.addConstraint(Sketcher.Constraint("DistanceY", 62, 3, -1, 1, Q("1.320038 mm")))
sketch3.addConstraint(Sketcher.Constraint("DistanceX", -1, 1, 63, 3, Q("29.350157 mm")))
sketch3.addConstraint(Sketcher.Constraint("DistanceY", -1, 1, 64, 3, Q("1.219962 mm")))
pocket2 = doc.addObject("PartDesign::Pocket", "Pocket001")
body.addObject(pocket2)
pocket2.Profile = sketch3
pocket2.Type = "ThroughAll"
body2 = doc.addObject("PartDesign::Body", "Body001")

sketch4 = doc.addObject("Sketcher::SketchObject", "Sketch003")
body2.addObject(sketch4)
sketch4.AttachmentSupport = (doc.getObject("XY_Plane001"), [""])
sketch4.MapMode = "FlatFace"
sketch4.addGeometry(Part.LineSegment(Vector(-35, -14, 0), Vector(-35, -26, 0)), False)
sketch4.addGeometry(Part.LineSegment(Vector(-35, -26, 0), Vector(-24, -26, 0)), False)
sketch4.addGeometry(Part.LineSegment(Vector(-24, -26, 0), Vector(-24, -14, 0)), False)
sketch4.addGeometry(Part.LineSegment(Vector(-24, -14, 0), Vector(-35, -14, 0)), False)
sketch4.addConstraint(Sketcher.Constraint("Coincident", 0, 2, 1, 1))
sketch4.addConstraint(Sketcher.Constraint("Coincident", 1, 2, 2, 1))
sketch4.addConstraint(Sketcher.Constraint("Coincident", 2, 2, 3, 1))
sketch4.addConstraint(Sketcher.Constraint("Coincident", 3, 2, 0, 1))
sketch4.addConstraint(Sketcher.Constraint("Vertical", 0))
sketch4.addConstraint(Sketcher.Constraint("Horizontal", 1))
sketch4.addConstraint(Sketcher.Constraint("Vertical", 2))
sketch4.addConstraint(Sketcher.Constraint("Horizontal", 3))
sketch4.addConstraint(Sketcher.Constraint("DistanceX", 1, 1, 1, 2, Q("11.5 mm")))
sketch4.addConstraint(Sketcher.Constraint("DistanceY", 0, 2, 0, 1, Q("12 mm")))
sketch4.addConstraint(Sketcher.Constraint("DistanceY", 0, 2, -1, 1, Q("26.17 mm")))
sketch4.addConstraint(Sketcher.Constraint("DistanceX", 0, 2, -1, 1, Q("35.289949 mm")))
pad2 = doc.addObject("PartDesign::Pad", "Pad001")
body2.addObject(pad2)
pad2.Profile = sketch4
pad2.Length = 10.5

sketch5 = doc.addObject("Sketcher::SketchObject", "Sketch004")
body2.addObject(sketch5)
sketch5.AttachmentSupport = (doc.getObject("YZ_Plane001"), [""])
sketch5.MapMode = "FlatFace"
sketch5.AttachmentOffset = App.Placement(Vector(0, 0, -35.289949), App.Rotation())
sketch5.addGeometry(Part.Circle(Vector(-20.2, 7, 0), Vector(0, 0, 1), 3.5), False)
sketch5.addGeometry(Part.Circle(Vector(-20.2, 7, 0), Vector(0, 0, 1), 1.8), False)
sketch5.addConstraint(Sketcher.Constraint("Coincident", 1, 3, 0, 3))
sketch5.addConstraint(Sketcher.Constraint("Diameter", 0, Q("6.92 mm")))
sketch5.addConstraint(Sketcher.Constraint("Diameter", 1, Q("3.5 mm")))
sketch5.addConstraint(Sketcher.Constraint("DistanceX", 0, 3, -1, 1, Q("20.17 mm")))
sketch5.addConstraint(Sketcher.Constraint("DistanceY", -1, 1, 0, 3, Q("7.04 mm")))
pad3 = doc.addObject("PartDesign::Pad", "Pad002")
body2.addObject(pad3)
pad3.Profile = sketch5
pad3.Length = 3.75
pad3.Reversed = True
body3 = doc.addObject("PartDesign::Body", "Body002")

sketch6 = doc.addObject("Sketcher::SketchObject", "Sketch005")
body3.addObject(sketch6)
sketch6.AttachmentSupport = (doc.getObject("XY_Plane002"), [""])
sketch6.MapMode = "FlatFace"
sketch6.addGeometry(Part.Circle(Vector(-26, 18, 0), Vector(0, 0, 1), 6), False)
sketch6.addConstraint(Sketcher.Constraint("Diameter", 0, Q("12 mm")))
sketch6.addConstraint(Sketcher.Constraint("DistanceX", 0, 3, -1, 1, Q("26.249599 mm")))
sketch6.addConstraint(Sketcher.Constraint("DistanceY", -1, 1, 0, 3, Q("18.279125 mm")))
pad4 = doc.addObject("PartDesign::Pad", "Pad003")
body3.addObject(pad4)
pad4.Profile = sketch6
pad4.Length = 6.75

sketch7 = doc.addObject("Sketcher::SketchObject", "Sketch006")
body3.addObject(sketch7)
sketch7.AttachmentSupport = (doc.getObject("XY_Plane002"), [""])
sketch7.MapMode = "FlatFace"
sketch7.AttachmentOffset = App.Placement(Vector(0, 0, 6.75), App.Rotation())
sketch7.addGeometry(Part.Circle(Vector(-26, 18, 0), Vector(0, 0, 1), 12), False)
sketch7.addConstraint(Sketcher.Constraint("Diameter", 0, Q("25 mm")))
sketch7.addConstraint(Sketcher.Constraint("DistanceX", 0, 3, -1, 1, Q("26.249599 mm")))
sketch7.addConstraint(Sketcher.Constraint("DistanceY", -1, 1, 0, 3, Q("18.279125 mm")))
pad5 = doc.addObject("PartDesign::Pad", "Pad004")
body3.addObject(pad5)
pad5.Profile = sketch7
pad5.Length = 2.5
body4 = doc.addObject("PartDesign::Body", "Body003")

sketch8 = doc.addObject("Sketcher::SketchObject", "Sketch007")
body4.addObject(sketch8)
sketch8.AttachmentSupport = (doc.getObject("XY_Plane003"), [""])
sketch8.MapMode = "FlatFace"
sketch8.addGeometry(Part.LineSegment(Vector(-11, -11, 0), Vector(-6, -7, 0)), False)
sketch8.addGeometry(Part.LineSegment(Vector(-6, -7, 0), Vector(-6, 13, 0)), False)
sketch8.addGeometry(Part.LineSegment(Vector(-6, 13, 0), Vector(-38, 13, 0)), False)
sketch8.addGeometry(Part.LineSegment(Vector(-38, 13, 0), Vector(-38, -11, 0)), False)
sketch8.addGeometry(Part.LineSegment(Vector(-38, -11, 0), Vector(-11, -11, 0)), False)
sketch8.addConstraint(Sketcher.Constraint("Coincident", 0, 2, 1, 1))
sketch8.addConstraint(Sketcher.Constraint("Coincident", 1, 2, 2, 1))
sketch8.addConstraint(Sketcher.Constraint("Coincident", 2, 2, 3, 1))
sketch8.addConstraint(Sketcher.Constraint("Coincident", 3, 2, 4, 1))
sketch8.addConstraint(Sketcher.Constraint("Coincident", 4, 2, 0, 1))
sketch8.addConstraint(Sketcher.Constraint("Vertical", 1))
sketch8.addConstraint(Sketcher.Constraint("Horizontal", 2))
sketch8.addConstraint(Sketcher.Constraint("Vertical", 3))
sketch8.addConstraint(Sketcher.Constraint("Horizontal", 4))
sketch8.addConstraint(Sketcher.Constraint("Angle", 0, Q("45 deg")))
sketch8.addConstraint(Sketcher.Constraint("DistanceX", 2, 2, 2, 1, Q("32 mm")))
sketch8.addConstraint(Sketcher.Constraint("DistanceX", 4, 1, 4, 2, Q("27.7 mm")))
sketch8.addConstraint(Sketcher.Constraint("DistanceY", 1, 1, 1, 2, Q("19.64 mm")))
sketch8.addConstraint(Sketcher.Constraint("DistanceY", 0, 2, -1, 1, Q("6.97 mm")))
sketch8.addConstraint(Sketcher.Constraint("DistanceX", 0, 2, -1, 1, Q("6.289949 mm")))
pad6 = doc.addObject("PartDesign::Pad", "Pad005")
body4.addObject(pad6)
pad6.Profile = sketch8
pad6.Length = 2

doc.recompute()
